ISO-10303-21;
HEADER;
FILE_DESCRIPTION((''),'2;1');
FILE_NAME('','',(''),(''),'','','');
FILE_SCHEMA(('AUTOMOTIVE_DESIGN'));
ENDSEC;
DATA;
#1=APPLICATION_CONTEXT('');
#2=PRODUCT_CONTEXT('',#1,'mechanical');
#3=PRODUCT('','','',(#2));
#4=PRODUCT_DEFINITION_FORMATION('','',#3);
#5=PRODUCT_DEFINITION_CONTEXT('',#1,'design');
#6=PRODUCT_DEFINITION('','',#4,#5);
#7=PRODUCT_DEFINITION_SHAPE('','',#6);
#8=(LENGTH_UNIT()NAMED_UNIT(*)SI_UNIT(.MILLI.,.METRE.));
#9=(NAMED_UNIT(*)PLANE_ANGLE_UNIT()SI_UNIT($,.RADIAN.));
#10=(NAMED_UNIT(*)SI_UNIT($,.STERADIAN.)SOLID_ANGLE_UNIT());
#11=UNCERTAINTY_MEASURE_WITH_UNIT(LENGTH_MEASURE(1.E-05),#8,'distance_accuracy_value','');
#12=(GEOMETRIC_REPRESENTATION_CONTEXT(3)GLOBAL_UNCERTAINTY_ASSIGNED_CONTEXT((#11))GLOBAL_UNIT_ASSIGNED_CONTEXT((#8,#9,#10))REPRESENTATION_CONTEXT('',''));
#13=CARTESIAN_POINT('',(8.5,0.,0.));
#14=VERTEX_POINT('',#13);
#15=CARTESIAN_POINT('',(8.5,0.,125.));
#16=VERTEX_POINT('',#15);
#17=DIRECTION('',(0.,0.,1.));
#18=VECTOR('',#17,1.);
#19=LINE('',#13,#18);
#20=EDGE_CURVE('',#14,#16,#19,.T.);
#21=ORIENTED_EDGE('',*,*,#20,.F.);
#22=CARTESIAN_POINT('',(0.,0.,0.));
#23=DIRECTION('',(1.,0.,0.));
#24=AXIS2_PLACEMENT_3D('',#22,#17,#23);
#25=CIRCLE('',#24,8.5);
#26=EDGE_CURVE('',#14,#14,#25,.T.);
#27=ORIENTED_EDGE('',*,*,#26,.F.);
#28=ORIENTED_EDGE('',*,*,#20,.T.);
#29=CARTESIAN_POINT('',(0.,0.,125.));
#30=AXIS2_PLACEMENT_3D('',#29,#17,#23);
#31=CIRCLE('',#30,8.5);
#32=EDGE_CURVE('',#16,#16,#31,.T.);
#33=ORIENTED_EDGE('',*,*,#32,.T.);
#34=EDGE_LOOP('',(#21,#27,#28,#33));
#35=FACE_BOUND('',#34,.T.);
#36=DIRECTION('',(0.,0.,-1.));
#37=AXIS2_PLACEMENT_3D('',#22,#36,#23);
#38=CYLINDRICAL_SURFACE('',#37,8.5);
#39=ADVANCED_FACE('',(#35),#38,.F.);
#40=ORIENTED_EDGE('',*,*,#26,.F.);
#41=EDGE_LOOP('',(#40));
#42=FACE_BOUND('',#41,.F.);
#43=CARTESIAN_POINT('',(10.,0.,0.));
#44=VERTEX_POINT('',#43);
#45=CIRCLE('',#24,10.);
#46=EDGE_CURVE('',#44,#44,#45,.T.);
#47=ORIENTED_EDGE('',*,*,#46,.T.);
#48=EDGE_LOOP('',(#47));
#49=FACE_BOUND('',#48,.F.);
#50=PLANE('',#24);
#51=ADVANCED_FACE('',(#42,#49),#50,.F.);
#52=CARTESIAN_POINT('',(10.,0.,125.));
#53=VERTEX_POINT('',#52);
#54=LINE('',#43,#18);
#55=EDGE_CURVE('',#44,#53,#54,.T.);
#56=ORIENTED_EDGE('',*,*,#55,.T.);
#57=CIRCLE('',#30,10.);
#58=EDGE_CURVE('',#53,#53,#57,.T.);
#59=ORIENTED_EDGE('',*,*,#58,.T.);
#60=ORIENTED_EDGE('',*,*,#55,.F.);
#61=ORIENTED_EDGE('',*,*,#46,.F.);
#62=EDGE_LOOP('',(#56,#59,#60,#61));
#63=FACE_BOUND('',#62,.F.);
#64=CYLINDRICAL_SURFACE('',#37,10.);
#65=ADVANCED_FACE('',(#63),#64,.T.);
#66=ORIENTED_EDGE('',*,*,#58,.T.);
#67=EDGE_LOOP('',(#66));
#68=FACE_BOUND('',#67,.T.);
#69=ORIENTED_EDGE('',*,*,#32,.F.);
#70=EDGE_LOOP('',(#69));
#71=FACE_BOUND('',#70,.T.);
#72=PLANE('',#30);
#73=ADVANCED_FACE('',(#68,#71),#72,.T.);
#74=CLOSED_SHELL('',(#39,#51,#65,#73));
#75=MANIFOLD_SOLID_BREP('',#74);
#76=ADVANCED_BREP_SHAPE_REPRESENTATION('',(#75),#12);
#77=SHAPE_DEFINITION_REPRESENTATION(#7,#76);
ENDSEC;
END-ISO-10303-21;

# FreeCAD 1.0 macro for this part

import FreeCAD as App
import Part
import Sketcher

V = App.Vector

doc = App.newDocument("Part")
body = doc.addObject("PartDesign::Body", "Body")

# Sketch on XY plane
sketch1 = body.newObject("Sketcher::SketchObject", "Sketch")
sketch1.AttachmentSupport = (doc.getObject("XY_Plane"), [""])
sketch1.MapMode = "FlatFace"
sketch1.addGeometry([
    Part.Circle(V(0, 0, 0), V(0, 0, 1), 10),
    Part.Circle(V(0, 0, 0), V(0, 0, 1), 8),
], False)
sketch1.addConstraint([
    Sketcher.Constraint("Coincident", 0, 3, -1, 1),
    Sketcher.Constraint("Coincident", 1, 3, -1, 1),
    Sketcher.Constraint("Diameter", 0, 20.0),
    Sketcher.Constraint("Diameter", 1, 17.0),
])
pad1 = body.newObject("PartDesign::Pad", "Pad")
pad1.Profile = sketch1
pad1.Length = 125

doc.recompute()
